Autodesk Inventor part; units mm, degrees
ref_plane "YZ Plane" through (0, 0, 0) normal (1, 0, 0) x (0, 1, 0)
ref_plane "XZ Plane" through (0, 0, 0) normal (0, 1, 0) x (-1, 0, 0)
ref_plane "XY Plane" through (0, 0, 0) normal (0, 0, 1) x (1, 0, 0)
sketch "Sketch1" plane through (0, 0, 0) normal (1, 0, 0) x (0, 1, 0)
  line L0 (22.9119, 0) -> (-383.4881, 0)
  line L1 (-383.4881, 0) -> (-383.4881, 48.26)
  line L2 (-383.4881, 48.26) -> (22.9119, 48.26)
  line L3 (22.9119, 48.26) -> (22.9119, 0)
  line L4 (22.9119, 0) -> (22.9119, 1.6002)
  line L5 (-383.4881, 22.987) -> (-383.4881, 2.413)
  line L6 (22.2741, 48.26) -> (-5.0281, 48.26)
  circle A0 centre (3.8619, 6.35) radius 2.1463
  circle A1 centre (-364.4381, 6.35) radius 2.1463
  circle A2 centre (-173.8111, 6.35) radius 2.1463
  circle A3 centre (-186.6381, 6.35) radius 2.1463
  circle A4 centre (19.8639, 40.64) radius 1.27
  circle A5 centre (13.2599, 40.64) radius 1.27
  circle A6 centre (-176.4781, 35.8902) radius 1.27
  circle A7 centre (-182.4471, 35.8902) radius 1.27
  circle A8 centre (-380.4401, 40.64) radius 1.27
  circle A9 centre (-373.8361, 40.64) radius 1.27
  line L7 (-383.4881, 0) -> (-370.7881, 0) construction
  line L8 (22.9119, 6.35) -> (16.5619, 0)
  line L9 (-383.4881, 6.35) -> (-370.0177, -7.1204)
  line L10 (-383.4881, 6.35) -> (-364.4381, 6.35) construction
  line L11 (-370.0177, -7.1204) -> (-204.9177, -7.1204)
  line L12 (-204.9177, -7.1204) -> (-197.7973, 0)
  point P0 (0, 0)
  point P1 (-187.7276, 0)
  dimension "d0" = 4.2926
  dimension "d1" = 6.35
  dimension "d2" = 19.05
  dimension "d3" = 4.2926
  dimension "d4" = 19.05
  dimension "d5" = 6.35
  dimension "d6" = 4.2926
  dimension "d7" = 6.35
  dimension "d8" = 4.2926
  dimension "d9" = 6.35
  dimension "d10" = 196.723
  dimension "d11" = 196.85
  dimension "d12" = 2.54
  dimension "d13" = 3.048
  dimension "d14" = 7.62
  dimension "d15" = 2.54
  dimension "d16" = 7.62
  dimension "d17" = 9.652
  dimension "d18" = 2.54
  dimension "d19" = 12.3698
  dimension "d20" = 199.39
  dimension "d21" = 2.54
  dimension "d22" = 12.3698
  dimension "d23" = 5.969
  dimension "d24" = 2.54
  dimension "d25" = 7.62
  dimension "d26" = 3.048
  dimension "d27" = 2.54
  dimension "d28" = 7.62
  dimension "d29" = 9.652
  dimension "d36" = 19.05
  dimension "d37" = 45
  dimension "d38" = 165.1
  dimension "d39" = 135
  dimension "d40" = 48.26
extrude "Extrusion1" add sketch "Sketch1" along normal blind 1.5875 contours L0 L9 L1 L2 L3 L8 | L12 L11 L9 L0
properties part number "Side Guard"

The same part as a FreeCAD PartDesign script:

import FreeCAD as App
import Part
import Sketcher

V = App.Vector
Q = App.Units.Quantity


def add_polygon(sketch, points):
    """Adds a closed chain of lines whose ends are joined by coincident constraints."""
    first, n = sketch.GeometryCount, len(points)
    for a, b in zip(points, points[1:] + points[:1]):
        sketch.addGeometry(Part.LineSegment(App.Vector(*a, 0), App.Vector(*b, 0)), False)
    for i in range(n):
        sketch.addConstraint(Sketcher.Constraint("Coincident", first + i, 2, first + (i + 1) % n, 1))

doc = App.newDocument("Part")
body = doc.addObject("PartDesign::Body", "Body")

# Sketch on YZ plane
sketch1 = body.newObject("Sketcher::SketchObject", "Sketch")
sketch1.AttachmentSupport = (doc.getObject("YZ_Plane"), [""])
sketch1.MapMode = "FlatFace"
add_polygon(sketch1, [(-197.8, 0), (16.6, 0), (22.9, 6.3), (22.9, 48.3), (-383.5, 48.3), (-383.5, 6.3), (-370, -7.1), (-204.9, -7.1)])  # lines 0-7
sketch1.addGeometry(Part.Circle(V(-364.4, 6.3, 0), V(0, 0, 1), 2.1), False)  # 8
sketch1.addGeometry(Part.Circle(V(-186.6, 6.3, 0), V(0, 0, 1), 2.1), False)  # 9
sketch1.addGeometry(Part.Circle(V(-173.8, 6.3, 0), V(0, 0, 1), 2.1), False)  # 10
sketch1.addGeometry(Part.Circle(V(3.9, 6.3, 0), V(0, 0, 1), 2.1), False)  # 11
sketch1.addGeometry(Part.Circle(V(-380.4, 40.6, 0), V(0, 0, 1), 1.3), False)  # 12
sketch1.addGeometry(Part.Circle(V(-373.8, 40.6, 0), V(0, 0, 1), 1.3), False)  # 13
sketch1.addGeometry(Part.Circle(V(-182.4, 35.9, 0), V(0, 0, 1), 1.3), False)  # 14
sketch1.addGeometry(Part.Circle(V(-176.5, 35.9, 0), V(0, 0, 1), 1.3), False)  # 15
sketch1.addGeometry(Part.Circle(V(13.3, 40.6, 0), V(0, 0, 1), 1.3), False)  # 16
sketch1.addGeometry(Part.Circle(V(19.9, 40.6, 0), V(0, 0, 1), 1.3), False)  # 17
sketch1.addConstraint(Sketcher.Constraint("Horizontal", 0))
sketch1.addConstraint(Sketcher.Constraint("Vertical", 2))
sketch1.addConstraint(Sketcher.Constraint("Horizontal", 3))
sketch1.addConstraint(Sketcher.Constraint("Vertical", 4))
sketch1.addConstraint(Sketcher.Constraint("Horizontal", 6))
sketch1.addConstraint(Sketcher.Constraint("Equal", 8, 9))
sketch1.addConstraint(Sketcher.Constraint("Equal", 9, 10))
sketch1.addConstraint(Sketcher.Constraint("Equal", 10, 11))
sketch1.addConstraint(Sketcher.Constraint("Equal", 12, 13))
sketch1.addConstraint(Sketcher.Constraint("Equal", 13, 14))
sketch1.addConstraint(Sketcher.Constraint("Equal", 14, 15))
sketch1.addConstraint(Sketcher.Constraint("Equal", 15, 16))
sketch1.addConstraint(Sketcher.Constraint("Equal", 16, 17))
sketch1.addConstraint(Sketcher.Constraint("PointOnObject", 0, 2, -1))
sketch1.addConstraint(Sketcher.Constraint("Perpendicular", 1, 5))
sketch1.addConstraint(Sketcher.Constraint("Perpendicular", 5, 7))
sketch1.addConstraint(Sketcher.Constraint("Horizontal", 8, 3, 9, 3))
sketch1.addConstraint(Sketcher.Constraint("Horizontal", 9, 3, 10, 3))
sketch1.addConstraint(Sketcher.Constraint("Horizontal", 10, 3, 11, 3))
sketch1.addConstraint(Sketcher.Constraint("Horizontal", 12, 3, 13, 3))
sketch1.addConstraint(Sketcher.Constraint("Horizontal", 14, 3, 15, 3))
sketch1.addConstraint(Sketcher.Constraint("Horizontal", 13, 3, 16, 3))
sketch1.addConstraint(Sketcher.Constraint("Horizontal", 16, 3, 17, 3))
sketch1.addConstraint(Sketcher.Constraint("Horizontal", 11, 3, 1, 2))
sketch1.addConstraint(Sketcher.Constraint("Horizontal", 1, 2, 4, 2))
sketch1.addConstraint(Sketcher.Constraint("Diameter", 12, Q("0.1 in")))
sketch1.addConstraint(Sketcher.Constraint("Diameter", 8, Q("0.169 in")))
sketch1.addConstraint(Sketcher.Constraint("DistanceX", 6, 1, 6, 2, Q("6.5 in")))
sketch1.addConstraint(Sketcher.Constraint("Angle", 1, Q("45 deg")))
sketch1.addConstraint(Sketcher.Constraint("DistanceY", -1, 1, 2, 2, Q("1.9 in")))
sketch1.addConstraint(Sketcher.Constraint("DistanceY", 17, 3, 2, 2, Q("0.3 in")))
sketch1.addConstraint(Sketcher.Constraint("Distance", 5, Q("0.75 in")))
sketch1.addConstraint(Sketcher.Constraint("DistanceX", 3, 2, 3, 1, Q("16 in")))
sketch1.addConstraint(Sketcher.Constraint("DistanceY", -1, 1, 8, 3, Q("0.25 in")))
sketch1.addConstraint(Sketcher.Constraint("DistanceX", 11, 3, 1, 2, Q("0.75 in")))
sketch1.addConstraint(Sketcher.Constraint("DistanceX", 17, 3, 1, 2, Q("0.12 in")))
sketch1.addConstraint(Sketcher.Constraint("DistanceX", 16, 3, 1, 2, Q("0.38 in")))
sketch1.addConstraint(Sketcher.Constraint("DistanceX", 3, 2, 12, 3, Q("0.12 in")))
sketch1.addConstraint(Sketcher.Constraint("DistanceX", 3, 2, 13, 3, Q("0.38 in")))
sketch1.addConstraint(Sketcher.Constraint("DistanceX", 3, 2, 8, 3, Q("0.75 in")))
sketch1.addConstraint(Sketcher.Constraint("DistanceX", 3, 2, 9, 3, Q("7.75 in")))
sketch1.addConstraint(Sketcher.Constraint("DistanceX", 14, 3, 15, 3, Q("0.235 in")))
sketch1.addConstraint(Sketcher.Constraint("DistanceX", 10, 3, 1, 2, Q("7.745 in")))
sketch1.addConstraint(Sketcher.Constraint("DistanceY", 14, 3, 3, 2, Q("0.487 in")))
sketch1.addConstraint(Sketcher.Constraint("DistanceX", 9, 3, 15, 3, Q("0.4 in")))
sketch1.addConstraint(Sketcher.Constraint("DistanceX", 7, 2, -1, 1, Q("7.7873 in")))
pad1 = body.newObject("PartDesign::Pad", "Pad")
pad1.Profile = sketch1
pad1.Length = Q("0.0625 in")

doc.recompute()
